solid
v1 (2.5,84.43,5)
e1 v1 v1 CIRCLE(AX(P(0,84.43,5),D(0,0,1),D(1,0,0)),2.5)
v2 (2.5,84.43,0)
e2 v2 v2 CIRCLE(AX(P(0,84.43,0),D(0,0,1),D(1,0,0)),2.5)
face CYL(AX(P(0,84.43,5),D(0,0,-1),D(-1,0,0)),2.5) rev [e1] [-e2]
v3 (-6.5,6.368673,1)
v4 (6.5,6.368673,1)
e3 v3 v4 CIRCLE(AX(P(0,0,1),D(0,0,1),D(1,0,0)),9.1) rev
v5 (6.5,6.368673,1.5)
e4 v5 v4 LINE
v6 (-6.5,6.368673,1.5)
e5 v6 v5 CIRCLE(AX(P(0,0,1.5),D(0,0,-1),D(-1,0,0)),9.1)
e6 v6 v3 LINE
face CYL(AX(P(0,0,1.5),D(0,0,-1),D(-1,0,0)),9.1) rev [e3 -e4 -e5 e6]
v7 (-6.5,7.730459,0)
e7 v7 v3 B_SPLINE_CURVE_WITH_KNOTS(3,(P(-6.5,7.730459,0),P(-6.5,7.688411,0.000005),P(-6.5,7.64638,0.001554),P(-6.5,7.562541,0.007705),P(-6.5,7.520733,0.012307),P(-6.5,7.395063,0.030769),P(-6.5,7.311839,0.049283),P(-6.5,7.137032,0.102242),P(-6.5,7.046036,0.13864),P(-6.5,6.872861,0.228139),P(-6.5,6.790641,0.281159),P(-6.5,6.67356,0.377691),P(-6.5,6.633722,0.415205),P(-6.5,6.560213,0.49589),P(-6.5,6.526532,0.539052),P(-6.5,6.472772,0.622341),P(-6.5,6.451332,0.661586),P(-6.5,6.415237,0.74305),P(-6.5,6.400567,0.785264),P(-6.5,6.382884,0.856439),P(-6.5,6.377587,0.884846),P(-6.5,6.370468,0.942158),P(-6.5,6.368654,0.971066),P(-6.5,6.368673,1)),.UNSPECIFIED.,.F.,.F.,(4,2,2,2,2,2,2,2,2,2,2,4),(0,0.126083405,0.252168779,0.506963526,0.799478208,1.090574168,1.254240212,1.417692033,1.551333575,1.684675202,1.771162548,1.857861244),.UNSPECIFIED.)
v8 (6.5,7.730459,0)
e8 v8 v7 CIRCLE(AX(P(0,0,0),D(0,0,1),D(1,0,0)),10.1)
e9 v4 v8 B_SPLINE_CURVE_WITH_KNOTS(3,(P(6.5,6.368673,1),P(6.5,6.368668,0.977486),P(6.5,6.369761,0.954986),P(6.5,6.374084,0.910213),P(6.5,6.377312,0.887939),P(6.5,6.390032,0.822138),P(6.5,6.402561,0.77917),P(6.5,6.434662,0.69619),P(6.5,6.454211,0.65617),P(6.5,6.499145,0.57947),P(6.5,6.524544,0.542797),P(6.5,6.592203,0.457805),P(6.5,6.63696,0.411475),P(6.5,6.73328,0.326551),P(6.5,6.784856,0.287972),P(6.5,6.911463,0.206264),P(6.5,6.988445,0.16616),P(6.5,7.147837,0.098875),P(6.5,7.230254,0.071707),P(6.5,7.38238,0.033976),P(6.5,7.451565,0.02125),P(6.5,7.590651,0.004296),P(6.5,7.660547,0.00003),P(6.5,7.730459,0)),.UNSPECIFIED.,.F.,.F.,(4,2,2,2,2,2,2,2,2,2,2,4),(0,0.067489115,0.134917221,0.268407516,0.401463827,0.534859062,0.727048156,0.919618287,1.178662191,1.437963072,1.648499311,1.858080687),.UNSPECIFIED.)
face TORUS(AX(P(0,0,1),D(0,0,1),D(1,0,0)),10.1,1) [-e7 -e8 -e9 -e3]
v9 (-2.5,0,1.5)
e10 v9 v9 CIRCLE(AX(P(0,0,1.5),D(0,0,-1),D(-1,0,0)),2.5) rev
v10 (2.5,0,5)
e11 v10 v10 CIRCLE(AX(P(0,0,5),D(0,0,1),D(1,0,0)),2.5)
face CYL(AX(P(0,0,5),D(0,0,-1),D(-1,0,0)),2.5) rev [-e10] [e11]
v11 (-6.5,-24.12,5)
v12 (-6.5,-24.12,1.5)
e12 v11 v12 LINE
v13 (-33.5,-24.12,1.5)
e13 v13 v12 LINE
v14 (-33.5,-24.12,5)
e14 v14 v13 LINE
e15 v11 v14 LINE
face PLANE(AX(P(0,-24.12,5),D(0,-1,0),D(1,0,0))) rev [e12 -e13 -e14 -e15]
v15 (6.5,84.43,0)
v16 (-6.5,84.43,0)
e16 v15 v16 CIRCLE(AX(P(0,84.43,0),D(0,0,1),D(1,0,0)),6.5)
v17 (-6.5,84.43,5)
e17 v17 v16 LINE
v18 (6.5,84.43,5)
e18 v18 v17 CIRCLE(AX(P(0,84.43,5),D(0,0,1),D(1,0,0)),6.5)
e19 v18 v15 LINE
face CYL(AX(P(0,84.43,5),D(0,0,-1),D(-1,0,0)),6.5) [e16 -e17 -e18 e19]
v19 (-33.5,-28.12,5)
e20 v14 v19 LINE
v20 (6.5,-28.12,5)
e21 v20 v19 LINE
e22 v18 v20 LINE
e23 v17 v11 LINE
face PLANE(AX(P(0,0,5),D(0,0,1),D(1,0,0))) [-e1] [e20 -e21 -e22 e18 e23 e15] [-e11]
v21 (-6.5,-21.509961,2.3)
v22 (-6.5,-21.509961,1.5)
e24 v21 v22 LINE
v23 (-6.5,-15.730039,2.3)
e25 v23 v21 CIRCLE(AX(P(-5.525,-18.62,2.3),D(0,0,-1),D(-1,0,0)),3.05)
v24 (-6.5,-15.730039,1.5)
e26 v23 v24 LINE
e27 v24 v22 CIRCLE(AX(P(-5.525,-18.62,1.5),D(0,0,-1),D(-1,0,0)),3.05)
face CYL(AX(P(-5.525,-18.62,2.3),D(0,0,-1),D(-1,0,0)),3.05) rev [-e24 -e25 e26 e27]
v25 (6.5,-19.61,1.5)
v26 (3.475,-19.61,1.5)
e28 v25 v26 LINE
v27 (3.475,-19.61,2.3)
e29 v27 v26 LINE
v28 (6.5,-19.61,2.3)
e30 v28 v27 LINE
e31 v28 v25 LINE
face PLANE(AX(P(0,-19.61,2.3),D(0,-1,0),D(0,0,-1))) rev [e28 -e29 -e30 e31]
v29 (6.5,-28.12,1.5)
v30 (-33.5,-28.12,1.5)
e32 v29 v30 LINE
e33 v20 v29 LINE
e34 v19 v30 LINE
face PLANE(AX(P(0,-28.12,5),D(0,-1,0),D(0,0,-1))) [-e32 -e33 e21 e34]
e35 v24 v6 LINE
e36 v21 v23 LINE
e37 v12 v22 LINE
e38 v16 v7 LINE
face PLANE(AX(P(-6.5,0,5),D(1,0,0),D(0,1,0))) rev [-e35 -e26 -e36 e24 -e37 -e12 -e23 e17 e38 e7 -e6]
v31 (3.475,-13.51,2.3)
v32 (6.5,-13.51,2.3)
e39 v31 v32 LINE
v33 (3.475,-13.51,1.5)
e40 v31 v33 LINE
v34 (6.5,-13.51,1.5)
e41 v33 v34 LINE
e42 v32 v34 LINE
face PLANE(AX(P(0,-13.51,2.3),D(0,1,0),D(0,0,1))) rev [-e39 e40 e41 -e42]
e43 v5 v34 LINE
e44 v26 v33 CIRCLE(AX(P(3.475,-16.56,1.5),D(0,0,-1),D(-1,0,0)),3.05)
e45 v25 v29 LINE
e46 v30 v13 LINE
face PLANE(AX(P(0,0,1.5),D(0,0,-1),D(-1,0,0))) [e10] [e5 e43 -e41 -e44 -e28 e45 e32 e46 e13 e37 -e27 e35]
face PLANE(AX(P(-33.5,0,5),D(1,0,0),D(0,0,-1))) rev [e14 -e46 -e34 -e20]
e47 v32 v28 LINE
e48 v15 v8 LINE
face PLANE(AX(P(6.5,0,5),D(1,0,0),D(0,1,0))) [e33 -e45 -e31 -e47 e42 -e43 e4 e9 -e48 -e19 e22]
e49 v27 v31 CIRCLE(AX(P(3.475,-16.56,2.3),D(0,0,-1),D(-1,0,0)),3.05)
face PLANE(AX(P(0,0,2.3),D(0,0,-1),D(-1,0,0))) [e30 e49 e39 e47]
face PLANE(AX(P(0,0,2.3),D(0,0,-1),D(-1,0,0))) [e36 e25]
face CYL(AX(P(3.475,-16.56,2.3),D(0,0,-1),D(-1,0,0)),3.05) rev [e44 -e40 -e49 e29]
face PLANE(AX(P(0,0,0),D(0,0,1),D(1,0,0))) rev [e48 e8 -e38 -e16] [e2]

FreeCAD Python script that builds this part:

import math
import FreeCAD as App
import Part
import Sketcher


def edges_at(feature, points):
    """Names of the edges that pass closest to the given points."""
    edges = feature.Shape.Edges
    near = lambda p: min(range(len(edges)), key=lambda i: edges[i].distToShape(Part.Vertex(*p))[0])
    return sorted({f"Edge{near(p) + 1}" for p in points})

doc = App.newDocument("Part")
body = doc.addObject("PartDesign::Body", "Body")

sketch1 = body.newObject("Sketcher::SketchObject", "Sketch")
sketch1.AttachmentSupport = (doc.getObject("XY_Plane"), [""])
sketch1.MapMode = "FlatFace"
sketch1.addGeometry(Part.LineSegment(App.Vector(-33.5, -24.12, 0), App.Vector(-33.5, -28.12, 0)), False)
sketch1.addGeometry(Part.LineSegment(App.Vector(-33.5, -28.12, 0), App.Vector(6.5, -28.12, 0)), False)
sketch1.addGeometry(Part.LineSegment(App.Vector(6.5, -28.12, 0), App.Vector(6.5, 84.43, 0)), False)
sketch1.addGeometry(Part.ArcOfCircle(Part.Circle(App.Vector(0, 84.43, 0), App.Vector(0, 0, 1), 6.5), math.radians(0), math.radians(180)), False)
sketch1.addGeometry(Part.LineSegment(App.Vector(-6.5, 84.43, 0), App.Vector(-6.5, -24.12, 0)), False)
sketch1.addGeometry(Part.LineSegment(App.Vector(-6.5, -24.12, 0), App.Vector(-33.5, -24.12, 0)), False)
sketch1.addGeometry(Part.Circle(App.Vector(0, 0, 0), App.Vector(0, 0, 1), 2.5), False)
sketch1.addGeometry(Part.Circle(App.Vector(0, 84.43, 0), App.Vector(0, 0, 1), 2.5), False)
sketch1.addConstraint(Sketcher.Constraint("Coincident", 0, 2, 1, 1))
sketch1.addConstraint(Sketcher.Constraint("Coincident", 1, 2, 2, 1))
sketch1.addConstraint(Sketcher.Constraint("Tangent", 2, 2, 3, 1))
sketch1.addConstraint(Sketcher.Constraint("Tangent", 3, 2, 4, 1))
sketch1.addConstraint(Sketcher.Constraint("Coincident", 4, 2, 5, 1))
sketch1.addConstraint(Sketcher.Constraint("Coincident", 5, 2, 0, 1))
sketch1.addConstraint(Sketcher.Constraint("Vertical", 0))
sketch1.addConstraint(Sketcher.Constraint("Horizontal", 1))
sketch1.addConstraint(Sketcher.Constraint("Vertical", 2))
sketch1.addConstraint(Sketcher.Constraint("Vertical", 4))
sketch1.addConstraint(Sketcher.Constraint("Horizontal", 5))
sketch1.addConstraint(Sketcher.Constraint("Coincident", 6, 3, -1, 1))
sketch1.addConstraint(Sketcher.Constraint("Coincident", 7, 3, 3, 3))
sketch1.addConstraint(Sketcher.Constraint("Equal", 6, 7))
sketch1.addConstraint(Sketcher.Constraint("PointOnObject", 3, 3, -2))
sketch1.addConstraint(Sketcher.Constraint("Diameter", 6, 5.0))
sketch1.addConstraint(Sketcher.Constraint("Radius", 3, 6.5))
sketch1.addConstraint(Sketcher.Constraint("DistanceX", 1, 1, 1, 2, 40.0))
sketch1.addConstraint(Sketcher.Constraint("DistanceY", 0, 2, 0, 1, 4.0))
sketch1.addConstraint(Sketcher.Constraint("DistanceY", 2, 1, 2, 2, 112.55))
sketch1.addConstraint(Sketcher.Constraint("DistanceY", -1, 1, 3, 3, 84.43))
pad1 = body.newObject("PartDesign::Pad", "Pad")
pad1.Profile = sketch1
pad1.Length = 5

sketch2 = body.newObject("Sketcher::SketchObject", "Sketch001")
sketch2.AttachmentSupport = (doc.getObject("XY_Plane"), [""])
sketch2.MapMode = "FlatFace"
sketch2.addGeometry(Part.LineSegment(App.Vector(-33.5, -28.12, 0), App.Vector(-33.5, -24.12, 0)), False)
sketch2.addGeometry(Part.LineSegment(App.Vector(-33.5, -24.12, 0), App.Vector(-6.5, -24.12, 0)), False)
sketch2.addGeometry(Part.LineSegment(App.Vector(-6.5, -24.12, 0), App.Vector(-6.5, 6.368673, 0)), False)
sketch2.addGeometry(Part.ArcOfCircle(Part.Circle(App.Vector(0, 0, 0), App.Vector(0, 0, 1), 9.1), math.radians(44.415309), math.radians(135.584691)), False)
sketch2.addGeometry(Part.LineSegment(App.Vector(6.5, 6.368673, 0), App.Vector(6.5, -28.12, 0)), False)
sketch2.addGeometry(Part.LineSegment(App.Vector(6.5, -28.12, 0), App.Vector(-33.5, -28.12, 0)), False)
sketch2.addGeometry(Part.Circle(App.Vector(0, 0, 0), App.Vector(0, 0, 1), 2.5), False)
sketch2.addConstraint(Sketcher.Constraint("Coincident", 0, 2, 1, 1))
sketch2.addConstraint(Sketcher.Constraint("Coincident", 1, 2, 2, 1))
sketch2.addConstraint(Sketcher.Constraint("Coincident", 2, 2, 3, 2))
sketch2.addConstraint(Sketcher.Constraint("Coincident", 3, 1, 4, 1))
sketch2.addConstraint(Sketcher.Constraint("Coincident", 4, 2, 5, 1))
sketch2.addConstraint(Sketcher.Constraint("Coincident", 5, 2, 0, 1))
sketch2.addConstraint(Sketcher.Constraint("Vertical", 0))
sketch2.addConstraint(Sketcher.Constraint("Horizontal", 1))
sketch2.addConstraint(Sketcher.Constraint("Vertical", 2))
sketch2.addConstraint(Sketcher.Constraint("Vertical", 4))
sketch2.addConstraint(Sketcher.Constraint("Horizontal", 5))
sketch2.addConstraint(Sketcher.Constraint("Coincident", 3, 3, -1, 1))
sketch2.addConstraint(Sketcher.Constraint("Coincident", 6, 3, -1, 1))
sketch2.addConstraint(Sketcher.Constraint("Horizontal", 2, 2, 3, 1))
sketch2.addConstraint(Sketcher.Constraint("Diameter", 6, 5.0))
sketch2.addConstraint(Sketcher.Constraint("Radius", 3, 9.1))
sketch2.addConstraint(Sketcher.Constraint("DistanceX", 1, 1, 1, 2, 27.0))
sketch2.addConstraint(Sketcher.Constraint("DistanceX", 5, 2, 5, 1, 40.0))
sketch2.addConstraint(Sketcher.Constraint("DistanceY", 0, 1, 0, 2, 4.0))
sketch2.addConstraint(Sketcher.Constraint("DistanceY", 0, 2, -1, 1, 24.12))
pocket1 = body.newObject("PartDesign::Pocket", "Pocket")
pocket1.Profile = sketch2
pocket1.Length = 1.5
pocket1.Reversed = True

sketch3 = body.newObject("Sketcher::SketchObject", "Sketch002")
sketch3.AttachmentSupport = (doc.getObject("XY_Plane"), [""])
sketch3.MapMode = "FlatFace"
sketch3.AttachmentOffset = App.Placement(App.Vector(0, 0, 1.5), App.Rotation())
sketch3.addGeometry(Part.ArcOfCircle(Part.Circle(App.Vector(3.475, -16.56, 0), App.Vector(0, 0, 1), 3.05), math.radians(90), math.radians(180)), False)
sketch3.addGeometry(Part.LineSegment(App.Vector(3.475, -13.51, 0), App.Vector(6.5, -13.51, 0)), False)
sketch3.addGeometry(Part.LineSegment(App.Vector(6.5, -13.51, 0), App.Vector(6.5, -16.170289, 0)), False)
sketch3.addGeometry(Part.ArcOfCircle(Part.Circle(App.Vector(3.475, -16.56, 0), App.Vector(0, 0, 1), 3.05), math.radians(-7.340993), math.radians(7.340993)), False)
sketch3.addGeometry(Part.LineSegment(App.Vector(6.5, -16.949711, 0), App.Vector(6.5, -19.61, 0)), False)
sketch3.addGeometry(Part.LineSegment(App.Vector(6.5, -19.61, 0), App.Vector(3.475, -19.61, 0)), False)
sketch3.addGeometry(Part.ArcOfCircle(Part.Circle(App.Vector(3.475, -16.56, 0), App.Vector(0, 0, 1), 3.05), math.radians(180), math.radians(270)), False)
sketch3.addGeometry(Part.ArcOfCircle(Part.Circle(App.Vector(-5.525, -18.62, 0), App.Vector(0, 0, 1), 3.05), math.radians(180), math.radians(251.356902)), False)
sketch3.addGeometry(Part.ArcOfCircle(Part.Circle(App.Vector(-5.525, -18.62, 0), App.Vector(0, 0, 1), 3.05), math.radians(108.643098), math.radians(180)), False)
sketch3.addGeometry(Part.ArcOfCircle(Part.Circle(App.Vector(-5.525, -18.62, 0), App.Vector(0, 0, 1), 3.05), math.radians(-108.643098), math.radians(108.643098)), False)
sketch3.addConstraint(Sketcher.Constraint("Tangent", 0, 1, 1, 1))
sketch3.addConstraint(Sketcher.Constraint("Coincident", 1, 2, 2, 1))
sketch3.addConstraint(Sketcher.Constraint("Coincident", 2, 2, 3, 2))
sketch3.addConstraint(Sketcher.Constraint("Coincident", 3, 1, 4, 1))
sketch3.addConstraint(Sketcher.Constraint("Coincident", 4, 2, 5, 1))
sketch3.addConstraint(Sketcher.Constraint("Tangent", 5, 2, 6, 2))
sketch3.addConstraint(Sketcher.Constraint("Tangent", 6, 1, 0, 2))
sketch3.addConstraint(Sketcher.Constraint("Tangent", 7, 1, 8, 2))
sketch3.addConstraint(Sketcher.Constraint("Tangent", 8, 1, 9, 2))
sketch3.addConstraint(Sketcher.Constraint("Tangent", 9, 1, 7, 2))
sketch3.addConstraint(Sketcher.Constraint("Horizontal", 1))
sketch3.addConstraint(Sketcher.Constraint("Vertical", 2))
sketch3.addConstraint(Sketcher.Constraint("Vertical", 4))
sketch3.addConstraint(Sketcher.Constraint("Horizontal", 5))
sketch3.addConstraint(Sketcher.Constraint("Coincident", 3, 3, 0, 3))
sketch3.addConstraint(Sketcher.Constraint("Equal", 0, 3))
sketch3.addConstraint(Sketcher.Constraint("Equal", 3, 6))
sketch3.addConstraint(Sketcher.Constraint("Equal", 6, 7))
sketch3.addConstraint(Sketcher.Constraint("Horizontal", 3, 3, 6, 1))
sketch3.addConstraint(Sketcher.Constraint("Horizontal", 9, 3, 7, 1))
sketch3.addConstraint(Sketcher.Constraint("Vertical", 2, 2, 3, 1))
sketch3.addConstraint(Sketcher.Constraint("Vertical", 8, 1, 9, 1))
sketch3.addConstraint(Sketcher.Constraint("Radius", 0, 3.05))
sketch3.addConstraint(Sketcher.Constraint("DistanceX", 7, 3, 3, 3, 9.0))
sketch3.addConstraint(Sketcher.Constraint("DistanceX", -1, 1, 1, 2, 6.5))
sketch3.addConstraint(Sketcher.Constraint("DistanceX", 8, 1, -1, 1, 6.5))
sketch3.addConstraint(Sketcher.Constraint("DistanceX", 1, 1, 1, 2, 3.025))
sketch3.addConstraint(Sketcher.Constraint("DistanceY", 0, 3, -1, 1, 16.56))
sketch3.addConstraint(Sketcher.Constraint("DistanceY", 7, 3, -1, 1, 18.62))
pocket2 = body.newObject("PartDesign::Pocket", "Pocket001")
pocket2.Profile = sketch3
pocket2.Length = 0.8
pocket2.Reversed = True
doc.recompute()

fillet = body.newObject("PartDesign::Fillet", "Fillet")
fillet.Base = (pocket2, edges_at(pocket2, [(0, 9.1, 0)]))
fillet.Radius = 1

doc.recompute()
